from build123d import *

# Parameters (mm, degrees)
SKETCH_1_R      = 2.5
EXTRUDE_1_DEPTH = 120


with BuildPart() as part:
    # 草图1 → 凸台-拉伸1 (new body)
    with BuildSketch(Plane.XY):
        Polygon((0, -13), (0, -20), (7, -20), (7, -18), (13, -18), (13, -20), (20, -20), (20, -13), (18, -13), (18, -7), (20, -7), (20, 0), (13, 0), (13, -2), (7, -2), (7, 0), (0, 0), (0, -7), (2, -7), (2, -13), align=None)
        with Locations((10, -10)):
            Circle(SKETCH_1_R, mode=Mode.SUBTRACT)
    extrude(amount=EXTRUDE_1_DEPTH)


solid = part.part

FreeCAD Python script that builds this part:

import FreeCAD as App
import Part
import Sketcher
Q = App.Units.Quantity


def add_polygon(sketch, points):
    """Adds a closed chain of lines whose ends are joined by coincident constraints."""
    first, n = sketch.GeometryCount, len(points)
    for a, b in zip(points, points[1:] + points[:1]):
        sketch.addGeometry(Part.LineSegment(App.Vector(*a, 0), App.Vector(*b, 0)), False)
    for i in range(n):
        sketch.addConstraint(Sketcher.Constraint("Coincident", first + i, 2, first + (i + 1) % n, 1))

doc = App.newDocument("Part")
body = doc.addObject("PartDesign::Body", "Body")

sketch1 = doc.addObject("Sketcher::SketchObject", "Sketch")
body.addObject(sketch1)
sketch1.AttachmentSupport = (doc.XY_Plane, [""])
sketch1.MapMode = "FlatFace"
add_polygon(sketch1, [(0, -13), (0, -20), (7, -20), (7, -18), (13, -18), (13, -20), (20, -20), (20, -13), (18, -13), (18, -7), (20, -7), (20, 0), (13, 0), (13, -2), (7, -2), (7, 0), (0, 0), (0, -7), (2, -7), (2, -13)])
sketch1.addGeometry(Part.Circle(App.Vector(10, -10, 0), App.Vector(0, 0, 1), 2.5), False)
sketch1.addConstraint([
    Sketcher.Constraint("Vertical", 0),
    Sketcher.Constraint("Horizontal", 1),
    Sketcher.Constraint("Vertical", 2),
    Sketcher.Constraint("Horizontal", 3),
    Sketcher.Constraint("Vertical", 4),
    Sketcher.Constraint("Horizontal", 5),
    Sketcher.Constraint("Vertical", 6),
    Sketcher.Constraint("Horizontal", 7),
    Sketcher.Constraint("Vertical", 8),
    Sketcher.Constraint("Horizontal", 9),
    Sketcher.Constraint("Vertical", 10),
    Sketcher.Constraint("Horizontal", 11),
    Sketcher.Constraint("Vertical", 12),
    Sketcher.Constraint("Horizontal", 13),
    Sketcher.Constraint("Vertical", 14),
    Sketcher.Constraint("Horizontal", 15),
    Sketcher.Constraint("Vertical", 16),
    Sketcher.Constraint("Horizontal", 17),
    Sketcher.Constraint("Vertical", 18),
    Sketcher.Constraint("Horizontal", 19),
    Sketcher.Constraint("Coincident", 15, 2, -1, 1),
    Sketcher.Constraint("PointOnObject", 0, 2, -2),
    Sketcher.Constraint("PointOnObject", 10, 2, -1),
    Sketcher.Constraint("Horizontal", 1, 2, 4, 2),
    Sketcher.Constraint("Horizontal", 9, 2, 16, 2),
    Sketcher.Constraint("Horizontal", 7, 2, 18, 2),
    Sketcher.Constraint("Vertical", 6, 2, 9, 2),
    Sketcher.Constraint("Vertical", 4, 2, 11, 2),
    Sketcher.Constraint("Vertical", 2, 2, 13, 2),
    Sketcher.Constraint("Equal", 1, 5),
    Sketcher.Constraint("Equal", 9, 17),
    Sketcher.Constraint("Equal", 15, 0),
    Sketcher.Constraint("Equal", 19, 2),
    Sketcher.Constraint("Equal", 13, 8),
    Sketcher.Constraint("Equal", 6, 10),
    Sketcher.Constraint("Equal", 4, 12),
    Sketcher.Constraint("Diameter", 20, Q("5 mm")),
    Sketcher.Constraint("DistanceX", 1, 1, 1, 2, Q("7 mm")),
    Sketcher.Constraint("DistanceX", 3, 1, 3, 2, Q("6 mm")),
    Sketcher.Constraint("DistanceX", 7, 2, 7, 1, Q("2 mm")),
    Sketcher.Constraint("DistanceX", -1, 1, 20, 3, Q("10 mm")),
    Sketcher.Constraint("DistanceY", 20, 3, -1, 1, Q("10 mm")),
])
pad1 = doc.addObject("PartDesign::Pad", "Pad")
body.addObject(pad1)
pad1.Profile = sketch1
pad1.Length = 120

doc.recompute()
